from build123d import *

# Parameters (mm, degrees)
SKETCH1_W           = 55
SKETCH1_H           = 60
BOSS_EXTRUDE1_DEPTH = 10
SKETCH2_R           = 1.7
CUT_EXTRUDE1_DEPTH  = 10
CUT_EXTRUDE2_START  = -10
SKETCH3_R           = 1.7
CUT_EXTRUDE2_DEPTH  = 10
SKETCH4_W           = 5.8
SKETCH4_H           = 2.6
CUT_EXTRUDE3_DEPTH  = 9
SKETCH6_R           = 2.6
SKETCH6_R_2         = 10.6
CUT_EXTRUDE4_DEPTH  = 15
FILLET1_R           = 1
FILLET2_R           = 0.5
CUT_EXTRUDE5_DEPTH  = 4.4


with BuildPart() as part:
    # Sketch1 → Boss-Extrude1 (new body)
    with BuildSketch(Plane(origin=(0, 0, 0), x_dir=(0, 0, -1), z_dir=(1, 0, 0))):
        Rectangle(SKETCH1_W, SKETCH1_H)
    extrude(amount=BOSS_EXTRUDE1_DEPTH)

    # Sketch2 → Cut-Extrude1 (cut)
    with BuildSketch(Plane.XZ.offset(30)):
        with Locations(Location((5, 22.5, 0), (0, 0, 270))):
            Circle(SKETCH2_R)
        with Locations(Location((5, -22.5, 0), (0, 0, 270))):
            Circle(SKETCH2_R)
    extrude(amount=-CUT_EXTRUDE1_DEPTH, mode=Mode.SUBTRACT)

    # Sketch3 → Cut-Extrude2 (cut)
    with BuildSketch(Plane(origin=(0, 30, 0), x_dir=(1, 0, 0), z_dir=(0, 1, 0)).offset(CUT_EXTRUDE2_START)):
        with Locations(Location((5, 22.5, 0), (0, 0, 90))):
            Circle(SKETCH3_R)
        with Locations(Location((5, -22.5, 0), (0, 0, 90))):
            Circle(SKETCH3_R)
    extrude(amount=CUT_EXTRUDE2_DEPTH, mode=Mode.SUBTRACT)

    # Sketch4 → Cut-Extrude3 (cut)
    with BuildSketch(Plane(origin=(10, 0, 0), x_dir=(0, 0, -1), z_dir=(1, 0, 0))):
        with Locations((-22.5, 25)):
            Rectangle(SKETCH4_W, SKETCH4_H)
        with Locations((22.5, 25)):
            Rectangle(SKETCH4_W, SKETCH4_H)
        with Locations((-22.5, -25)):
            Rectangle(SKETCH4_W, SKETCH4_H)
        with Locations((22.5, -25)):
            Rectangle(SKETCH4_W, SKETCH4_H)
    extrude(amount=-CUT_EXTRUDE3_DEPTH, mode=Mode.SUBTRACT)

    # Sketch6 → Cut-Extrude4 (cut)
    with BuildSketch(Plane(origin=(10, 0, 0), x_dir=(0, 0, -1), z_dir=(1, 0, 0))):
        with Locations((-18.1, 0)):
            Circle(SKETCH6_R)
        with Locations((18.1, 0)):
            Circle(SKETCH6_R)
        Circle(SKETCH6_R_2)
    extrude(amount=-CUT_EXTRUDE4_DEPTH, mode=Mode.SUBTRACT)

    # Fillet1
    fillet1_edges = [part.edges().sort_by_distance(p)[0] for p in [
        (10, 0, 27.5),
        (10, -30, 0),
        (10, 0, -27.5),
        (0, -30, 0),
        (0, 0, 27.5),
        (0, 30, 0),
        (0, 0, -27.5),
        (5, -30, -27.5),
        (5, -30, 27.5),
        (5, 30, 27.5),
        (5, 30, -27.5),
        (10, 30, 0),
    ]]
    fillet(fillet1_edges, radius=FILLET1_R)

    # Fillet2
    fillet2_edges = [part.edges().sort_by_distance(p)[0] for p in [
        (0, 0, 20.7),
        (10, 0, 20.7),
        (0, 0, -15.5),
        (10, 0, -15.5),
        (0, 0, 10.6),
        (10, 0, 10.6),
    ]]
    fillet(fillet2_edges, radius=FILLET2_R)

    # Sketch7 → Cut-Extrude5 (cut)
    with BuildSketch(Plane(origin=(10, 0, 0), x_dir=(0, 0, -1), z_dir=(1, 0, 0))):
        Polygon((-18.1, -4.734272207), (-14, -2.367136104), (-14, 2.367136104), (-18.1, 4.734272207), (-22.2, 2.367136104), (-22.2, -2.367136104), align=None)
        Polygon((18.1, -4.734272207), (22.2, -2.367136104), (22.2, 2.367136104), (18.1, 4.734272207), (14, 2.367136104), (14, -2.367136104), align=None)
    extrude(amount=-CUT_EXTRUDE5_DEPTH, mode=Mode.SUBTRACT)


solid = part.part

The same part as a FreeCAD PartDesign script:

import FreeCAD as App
import Part
import Sketcher

V = App.Vector
Q = App.Units.Quantity


def edges_at(feature, points):
    """Names of the edges that pass closest to the given points."""
    edges = feature.Shape.Edges
    near = lambda p: min(range(len(edges)), key=lambda i: edges[i].distToShape(Part.Vertex(*p))[0])
    return sorted({f"Edge{near(p) + 1}" for p in points})

doc = App.newDocument("Part")
params = doc.addObject("Spreadsheet::Sheet", "Params")
for row, (alias, value) in enumerate([
    ("sketch1_width", "60 mm"),
    ("sketch1_height", "55 mm"),
    ("pad1_length", "10 mm"),
    ("sketch2_diameter", "3.4 mm"),
    ("pocket1_length", "10 mm"),
    ("sketch3_diameter", "3.4 mm"),
    ("pocket2_length", "10 mm"),
    ("sketch4_width", "2.6 mm"),
    ("sketch4_height", "5.8 mm"),
    ("pocket3_length", "9 mm"),
    ("sketch5_diameter", "5.2 mm"),
    ("sketch5_diameter2", "21.2 mm"),
    ("pocket4_length", "15 mm"),
    ("fillet_radius", "1 mm"),
    ("fillet2_radius", "0.5 mm"),
    ("pocket5_length", "4.4 mm"),
], start=1):
    params.set(f"A{row}", alias)
    params.set(f"B{row}", "=" + value)
    params.setAlias(f"B{row}", alias)

body = doc.addObject("PartDesign::Body", "Body")

sketch1 = body.newObject("Sketcher::SketchObject", "Sketch")
sketch1.AttachmentSupport = (doc.getObject("YZ_Plane"), [""])
sketch1.MapMode = "FlatFace"
sketch1.addGeometry([
    Part.LineSegment(V(30, 28, 0), V(-30, 28, 0)),
    Part.LineSegment(V(-30, 28, 0), V(-30, -28, 0)),
    Part.LineSegment(V(-30, -28, 0), V(30, -28, 0)),
    Part.LineSegment(V(30, -28, 0), V(30, 28, 0)),
], False)
sketch1.addConstraint([
    Sketcher.Constraint("Coincident", 0, 2, 1, 1),
    Sketcher.Constraint("Coincident", 1, 2, 2, 1),
    Sketcher.Constraint("Coincident", 2, 2, 3, 1),
    Sketcher.Constraint("Coincident", 3, 2, 0, 1),
    Sketcher.Constraint("Horizontal", 0),
    Sketcher.Constraint("Vertical", 1),
    Sketcher.Constraint("Horizontal", 2),
    Sketcher.Constraint("Vertical", 3),
    Sketcher.Constraint("Symmetric", 0, 2, 2, 2, -1, 1),
    Sketcher.Constraint("DistanceX", 0, 2, 0, 1, Q("60 mm")),
    Sketcher.Constraint("DistanceY", 1, 2, 1, 1, Q("55 mm")),
])
sketch1.setExpression("Constraints[9]", "Params.sketch1_width")
sketch1.setExpression("Constraints[10]", "Params.sketch1_height")
pad1 = body.newObject("PartDesign::Pad", "Pad")
pad1.Profile = sketch1
pad1.setExpression("Length", "Params.pad1_length")

sketch2 = body.newObject("Sketcher::SketchObject", "Sketch001")
sketch2.AttachmentSupport = (doc.getObject("XZ_Plane"), [""])
sketch2.MapMode = "FlatFace"
sketch2.AttachmentOffset = App.Placement(V(0, 0, 30), App.Rotation())
sketch2.addGeometry([
    Part.Circle(V(5, 22.5, 0), V(0, 0, 1), 1.7),
    Part.Circle(V(5, -22.5, 0), V(0, 0, 1), 1.7),
], False)
sketch2.addConstraint([
    Sketcher.Constraint("Equal", 0, 1),
    Sketcher.Constraint("Symmetric", 0, 3, 1, 3, -1),
    Sketcher.Constraint("Diameter", 0, Q("3.4 mm")),
    Sketcher.Constraint("DistanceX", -1, 1, 0, 3, Q("5 mm")),
    Sketcher.Constraint("DistanceY", 1, 3, 0, 3, Q("45 mm")),
])
sketch2.setExpression("Constraints[2]", "Params.sketch2_diameter")
pocket1 = body.newObject("PartDesign::Pocket", "Pocket")
pocket1.Profile = sketch2
pocket1.setExpression("Length", "Params.pocket1_length")

sketch3 = body.newObject("Sketcher::SketchObject", "Sketch002")
sketch3.AttachmentSupport = (doc.getObject("XZ_Plane"), [""])
sketch3.MapMode = "FlatFace"
sketch3.AttachmentOffset = App.Placement(V(0, 0, -20), App.Rotation())
sketch3.addGeometry([
    Part.Circle(V(5, -22.5, 0), V(0, 0, 1), 1.7),
    Part.Circle(V(5, 22.5, 0), V(0, 0, 1), 1.7),
], False)
sketch3.addConstraint([
    Sketcher.Constraint("Equal", 0, 1),
    Sketcher.Constraint("Symmetric", 0, 3, 1, 3, -1),
    Sketcher.Constraint("Diameter", 0, Q("3.4 mm")),
    Sketcher.Constraint("DistanceX", -1, 1, 0, 3, Q("5 mm")),
    Sketcher.Constraint("DistanceY", 0, 3, 1, 3, Q("45 mm")),
])
sketch3.setExpression("Constraints[2]", "Params.sketch3_diameter")
pocket2 = body.newObject("PartDesign::Pocket", "Pocket001")
pocket2.Profile = sketch3
pocket2.setExpression("Length", "Params.pocket2_length")

sketch4 = body.newObject("Sketcher::SketchObject", "Sketch003")
sketch4.AttachmentSupport = (doc.getObject("YZ_Plane"), [""])
sketch4.MapMode = "FlatFace"
sketch4.AttachmentOffset = App.Placement(V(0, 0, 10), App.Rotation())
sketch4.addGeometry([
    Part.LineSegment(V(26.3, 25.4, 0), V(23.7, 25.4, 0)),
    Part.LineSegment(V(23.7, 25.4, 0), V(23.7, 19.6, 0)),
    Part.LineSegment(V(23.7, 19.6, 0), V(26.3, 19.6, 0)),
    Part.LineSegment(V(26.3, 19.6, 0), V(26.3, 25.4, 0)),
    Part.LineSegment(V(26.3, -19.6, 0), V(23.7, -19.6, 0)),
    Part.LineSegment(V(23.7, -19.6, 0), V(23.7, -25.4, 0)),
    Part.LineSegment(V(23.7, -25.4, 0), V(26.3, -25.4, 0)),
    Part.LineSegment(V(26.3, -25.4, 0), V(26.3, -19.6, 0)),
    Part.LineSegment(V(-23.7, 25.4, 0), V(-26.3, 25.4, 0)),
    Part.LineSegment(V(-26.3, 25.4, 0), V(-26.3, 19.6, 0)),
    Part.LineSegment(V(-26.3, 19.6, 0), V(-23.7, 19.6, 0)),
    Part.LineSegment(V(-23.7, 19.6, 0), V(-23.7, 25.4, 0)),
    Part.LineSegment(V(-23.7, -19.6, 0), V(-26.3, -19.6, 0)),
    Part.LineSegment(V(-26.3, -19.6, 0), V(-26.3, -25.4, 0)),
    Part.LineSegment(V(-26.3, -25.4, 0), V(-23.7, -25.4, 0)),
    Part.LineSegment(V(-23.7, -25.4, 0), V(-23.7, -19.6, 0)),
], False)
sketch4.addConstraint([
    Sketcher.Constraint("Coincident", 0, 2, 1, 1),
    Sketcher.Constraint("Coincident", 1, 2, 2, 1),
    Sketcher.Constraint("Coincident", 2, 2, 3, 1),
    Sketcher.Constraint("Coincident", 3, 2, 0, 1),
    Sketcher.Constraint("Coincident", 4, 2, 5, 1),
    Sketcher.Constraint("Coincident", 5, 2, 6, 1),
    Sketcher.Constraint("Coincident", 6, 2, 7, 1),
    Sketcher.Constraint("Coincident", 7, 2, 4, 1),
    Sketcher.Constraint("Coincident", 8, 2, 9, 1),
    Sketcher.Constraint("Coincident", 9, 2, 10, 1),
    Sketcher.Constraint("Coincident", 10, 2, 11, 1),
    Sketcher.Constraint("Coincident", 11, 2, 8, 1),
    Sketcher.Constraint("Coincident", 12, 2, 13, 1),
    Sketcher.Constraint("Coincident", 13, 2, 14, 1),
    Sketcher.Constraint("Coincident", 14, 2, 15, 1),
    Sketcher.Constraint("Coincident", 15, 2, 12, 1),
    Sketcher.Constraint("Horizontal", 0),
    Sketcher.Constraint("Vertical", 1),
    Sketcher.Constraint("Horizontal", 2),
    Sketcher.Constraint("Vertical", 3),
    Sketcher.Constraint("Horizontal", 4),
    Sketcher.Constraint("Vertical", 5),
    Sketcher.Constraint("Horizontal", 6),
    Sketcher.Constraint("Vertical", 7),
    Sketcher.Constraint("Horizontal", 8),
    Sketcher.Constraint("Vertical", 9),
    Sketcher.Constraint("Horizontal", 10),
    Sketcher.Constraint("Vertical", 11),
    Sketcher.Constraint("Horizontal", 12),
    Sketcher.Constraint("Vertical", 13),
    Sketcher.Constraint("Horizontal", 14),
    Sketcher.Constraint("Vertical", 15),
    Sketcher.Constraint("Symmetric", 6, 2, 8, 2, -1, 1),
    Sketcher.Constraint("Symmetric", 4, 2, 10, 2, -1, 1),
    Sketcher.Constraint("Symmetric", 2, 2, 12, 2, -1, 1),
    Sketcher.Constraint("Symmetric", 0, 2, 14, 2, -1, 1),
    Sketcher.Constraint("Symmetric", 3, 2, 8, 2, -2),
    Sketcher.Constraint("Symmetric", 1, 2, 10, 2, -2),
    Sketcher.Constraint("DistanceX", 0, 2, 0, 1, Q("2.6 mm")),
    Sketcher.Constraint("DistanceY", 1, 2, 1, 1, Q("5.8 mm")),
    Sketcher.Constraint("DistanceY", 4, 2, 0, 2, Q("45 mm")),
    Sketcher.Constraint("DistanceX", 8, 2, 0, 2, Q("50 mm")),
])
sketch4.setExpression("Constraints[38]", "Params.sketch4_width")
sketch4.setExpression("Constraints[39]", "Params.sketch4_height")
pocket3 = body.newObject("PartDesign::Pocket", "Pocket002")
pocket3.Profile = sketch4
pocket3.setExpression("Length", "Params.pocket3_length")

sketch5 = body.newObject("Sketcher::SketchObject", "Sketch004")
sketch5.AttachmentSupport = (doc.getObject("YZ_Plane"), [""])
sketch5.MapMode = "FlatFace"
sketch5.AttachmentOffset = App.Placement(V(0, 0, 10), App.Rotation())
sketch5.addGeometry([
    Part.Circle(V(0, 18.1, 0), V(0, 0, 1), 2.6),
    Part.Circle(V(0, -18.1, 0), V(0, 0, 1), 2.6),
    Part.Circle(V(0, 0, 0), V(0, 0, 1), 10.6),
], False)
sketch5.addConstraint([
    Sketcher.Constraint("Coincident", 2, 3, -1, 1),
    Sketcher.Constraint("Equal", 0, 1),
    Sketcher.Constraint("Symmetric", 0, 3, 1, 3, -1, 1),
    Sketcher.Constraint("PointOnObject", 0, 3, -2),
    Sketcher.Constraint("Diameter", 0, Q("5.2 mm")),
    Sketcher.Constraint("Diameter", 2, Q("21.2 mm")),
    Sketcher.Constraint("DistanceY", -1, 1, 0, 3, Q("18.1 mm")),
])
sketch5.setExpression("Constraints[4]", "Params.sketch5_diameter")
sketch5.setExpression("Constraints[5]", "Params.sketch5_diameter2")
pocket4 = body.newObject("PartDesign::Pocket", "Pocket003")
pocket4.Profile = sketch5
pocket4.setExpression("Length", "Params.pocket4_length")
doc.recompute()

fillet = body.newObject("PartDesign::Fillet", "Fillet")
fillet.Base = (pocket4, edges_at(pocket4, [
    (10, 0, 27.5),
    (10, -30, 0),
    (10, 0, -27.5),
    (0, -30, 0),
    (0, 0, 27.5),
    (0, 30, 0),
    (0, 0, -27.5),
    (5, -30, -27.5),
    (5, -30, 27.5),
    (5, 30, 27.5),
    (5, 30, -27.5),
    (10, 30, 0),
]))
fillet.setExpression("Radius", "Params.fillet_radius")
doc.recompute()

fillet2 = body.newObject("PartDesign::Fillet", "Fillet001")
fillet2.Base = (fillet, edges_at(fillet, [
    (0, 0, 20.7),
    (10, 0, 20.7),
    (0, 0, -15.5),
    (10, 0, -15.5),
    (0, 0, 10.6),
    (10, 0, 10.6),
]))
fillet2.setExpression("Radius", "Params.fillet2_radius")

sketch6 = body.newObject("Sketcher::SketchObject", "Sketch005")
sketch6.AttachmentSupport = (doc.getObject("YZ_Plane"), [""])
sketch6.MapMode = "FlatFace"
sketch6.AttachmentOffset = App.Placement(V(0, 0, 10), App.Rotation())
sketch6.addGeometry([
    Part.LineSegment(V(-4.7, 18.1, 0), V(-2.4, 14, 0)),
    Part.LineSegment(V(-2.4, 14, 0), V(2.4, 14, 0)),
    Part.LineSegment(V(2.4, 14, 0), V(4.7, 18.1, 0)),
    Part.LineSegment(V(4.7, 18.1, 0), V(2.4, 22.2, 0)),
    Part.LineSegment(V(2.4, 22.2, 0), V(-2.4, 22.2, 0)),
    Part.LineSegment(V(-2.4, 22.2, 0), V(-4.7, 18.1, 0)),
    Part.LineSegment(V(-4.7, -18.1, 0), V(-2.4, -22.2, 0)),
    Part.LineSegment(V(-2.4, -22.2, 0), V(2.4, -22.2, 0)),
    Part.LineSegment(V(2.4, -22.2, 0), V(4.7, -18.1, 0)),
    Part.LineSegment(V(4.7, -18.1, 0), V(2.4, -14, 0)),
    Part.LineSegment(V(2.4, -14, 0), V(-2.4, -14, 0)),
    Part.LineSegment(V(-2.4, -14, 0), V(-4.7, -18.1, 0)),
], False)
sketch6.addConstraint([
    Sketcher.Constraint("Coincident", 0, 2, 1, 1),
    Sketcher.Constraint("Coincident", 1, 2, 2, 1),
    Sketcher.Constraint("Coincident", 2, 2, 3, 1),
    Sketcher.Constraint("Coincident", 3, 2, 4, 1),
    Sketcher.Constraint("Coincident", 4, 2, 5, 1),
    Sketcher.Constraint("Coincident", 5, 2, 0, 1),
    Sketcher.Constraint("Coincident", 6, 2, 7, 1),
    Sketcher.Constraint("Coincident", 7, 2, 8, 1),
    Sketcher.Constraint("Coincident", 8, 2, 9, 1),
    Sketcher.Constraint("Coincident", 9, 2, 10, 1),
    Sketcher.Constraint("Coincident", 10, 2, 11, 1),
    Sketcher.Constraint("Coincident", 11, 2, 6, 1),
    Sketcher.Constraint("Horizontal", 1),
    Sketcher.Constraint("Horizontal", 4),
    Sketcher.Constraint("Horizontal", 7),
    Sketcher.Constraint("Horizontal", 10),
    Sketcher.Constraint("Symmetric", 3, 2, 6, 2, -1, 1),
    Sketcher.Constraint("Symmetric", 5, 2, 8, 2, -1, 1),
    Sketcher.Constraint("Symmetric", 0, 2, 9, 2, -1, 1),
    Sketcher.Constraint("Symmetric", 2, 2, 11, 2, -1, 1),
    Sketcher.Constraint("Symmetric", 2, 2, 5, 2, -2),
    Sketcher.Constraint("Parallel", 0, 3),
    Sketcher.Constraint("Parallel", 2, 5),
    Sketcher.Constraint("Parallel", 5, 8),
    Sketcher.Constraint("Parallel", 8, 11),
    Sketcher.Constraint("Vertical", 1, 2, 3, 2),
    Sketcher.Constraint("Vertical", 0, 2, 4, 2),
    Sketcher.Constraint("Angle", 0, Q("-60 deg")),
    Sketcher.Constraint("DistanceY", -1, 1, 0, 2, Q("14 mm")),
    Sketcher.Constraint("DistanceY", -1, 1, 2, 2, Q("18.1 mm")),
    Sketcher.Constraint("DistanceX", 1, 1, 1, 2, Q("4.734272 mm")),
])
pocket5 = body.newObject("PartDesign::Pocket", "Pocket004")
pocket5.Profile = sketch6
pocket5.setExpression("Length", "Params.pocket5_length")

doc.recompute()
